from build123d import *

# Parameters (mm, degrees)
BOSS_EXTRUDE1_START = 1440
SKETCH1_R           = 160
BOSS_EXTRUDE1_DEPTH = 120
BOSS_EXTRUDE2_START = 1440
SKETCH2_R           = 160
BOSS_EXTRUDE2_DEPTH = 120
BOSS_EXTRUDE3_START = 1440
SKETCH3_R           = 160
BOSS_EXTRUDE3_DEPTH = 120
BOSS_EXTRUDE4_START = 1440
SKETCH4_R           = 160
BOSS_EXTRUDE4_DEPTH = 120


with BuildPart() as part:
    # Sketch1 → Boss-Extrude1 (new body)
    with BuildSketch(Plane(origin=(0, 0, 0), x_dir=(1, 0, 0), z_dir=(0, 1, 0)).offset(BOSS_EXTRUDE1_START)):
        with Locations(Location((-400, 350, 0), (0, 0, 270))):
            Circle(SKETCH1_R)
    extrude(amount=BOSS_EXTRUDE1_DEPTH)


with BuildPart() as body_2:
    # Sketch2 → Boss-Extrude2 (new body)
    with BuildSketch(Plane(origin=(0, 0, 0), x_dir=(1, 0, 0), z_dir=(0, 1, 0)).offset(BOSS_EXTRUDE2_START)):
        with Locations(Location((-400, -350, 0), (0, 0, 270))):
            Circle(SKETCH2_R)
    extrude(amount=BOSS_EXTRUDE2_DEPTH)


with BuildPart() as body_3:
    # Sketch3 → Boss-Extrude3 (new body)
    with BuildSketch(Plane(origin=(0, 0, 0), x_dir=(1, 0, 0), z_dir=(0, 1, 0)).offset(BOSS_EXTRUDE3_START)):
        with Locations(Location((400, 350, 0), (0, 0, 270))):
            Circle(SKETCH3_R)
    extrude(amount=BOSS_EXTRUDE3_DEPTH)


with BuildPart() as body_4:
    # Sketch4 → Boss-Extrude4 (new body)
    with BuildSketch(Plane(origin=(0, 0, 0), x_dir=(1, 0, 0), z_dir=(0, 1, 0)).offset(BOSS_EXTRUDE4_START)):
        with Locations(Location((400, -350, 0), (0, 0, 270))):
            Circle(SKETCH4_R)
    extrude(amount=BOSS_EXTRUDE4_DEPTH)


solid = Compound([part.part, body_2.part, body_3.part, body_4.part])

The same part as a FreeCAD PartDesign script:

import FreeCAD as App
import Part
import Sketcher

V = App.Vector
Q = App.Units.Quantity

doc = App.newDocument("Part")
params = doc.addObject("Spreadsheet::Sheet", "Params")
for row, (alias, value) in enumerate([
    ("sketch1_diameter", "320 mm"),
    ("pad1_length", "120 mm"),
    ("sketch2_diameter", "320 mm"),
    ("pad2_length", "120 mm"),
    ("sketch3_diameter", "320 mm"),
    ("pad3_length", "120 mm"),
    ("sketch4_diameter", "320 mm"),
    ("pad4_length", "120 mm"),
], start=1):
    params.set(f"A{row}", alias)
    params.set(f"B{row}", "=" + value)
    params.setAlias(f"B{row}", alias)

body = doc.addObject("PartDesign::Body", "Body")

# Sketch on XZ plane
sketch1 = body.newObject("Sketcher::SketchObject", "Sketch")
sketch1.AttachmentSupport = (doc.getObject("XZ_Plane"), [""])
sketch1.MapMode = "FlatFace"
sketch1.AttachmentOffset = App.Placement(V(0, 0, -1440), App.Rotation())
sketch1.addGeometry(Part.Circle(V(-400, -350, 0), V(0, 0, 1), 160), False)
sketch1.addConstraint(Sketcher.Constraint("Diameter", 0, Q("320 mm")))
sketch1.addConstraint(Sketcher.Constraint("DistanceX", 0, 3, -1, 1, Q("400 mm")))
sketch1.addConstraint(Sketcher.Constraint("DistanceY", 0, 3, -1, 1, Q("350 mm")))
sketch1.setExpression("Constraints[0]", "Params.sketch1_diameter")
pad1 = body.newObject("PartDesign::Pad", "Pad")
pad1.Profile = sketch1
pad1.setExpression("Length", "Params.pad1_length")
pad1.Reversed = True
body2 = doc.addObject("PartDesign::Body", "Body001")

# Sketch on XZ plane
sketch2 = body2.newObject("Sketcher::SketchObject", "Sketch001")
sketch2.AttachmentSupport = (doc.getObject("XZ_Plane001"), [""])
sketch2.MapMode = "FlatFace"
sketch2.AttachmentOffset = App.Placement(V(0, 0, -1440), App.Rotation())
sketch2.addGeometry(Part.Circle(V(-400, 350, 0), V(0, 0, 1), 160), False)
sketch2.addConstraint(Sketcher.Constraint("Diameter", 0, Q("320 mm")))
sketch2.addConstraint(Sketcher.Constraint("DistanceX", 0, 3, -1, 1, Q("400 mm")))
sketch2.addConstraint(Sketcher.Constraint("DistanceY", -1, 1, 0, 3, Q("350 mm")))
sketch2.setExpression("Constraints[0]", "Params.sketch2_diameter")
pad2 = body2.newObject("PartDesign::Pad", "Pad001")
pad2.Profile = sketch2
pad2.setExpression("Length", "Params.pad2_length")
pad2.Reversed = True
body3 = doc.addObject("PartDesign::Body", "Body002")

# Sketch on XZ plane
sketch3 = body3.newObject("Sketcher::SketchObject", "Sketch002")
sketch3.AttachmentSupport = (doc.getObject("XZ_Plane002"), [""])
sketch3.MapMode = "FlatFace"
sketch3.AttachmentOffset = App.Placement(V(0, 0, -1440), App.Rotation())
sketch3.addGeometry(Part.Circle(V(400, -350, 0), V(0, 0, 1), 160), False)
sketch3.addConstraint(Sketcher.Constraint("Diameter", 0, Q("320 mm")))
sketch3.addConstraint(Sketcher.Constraint("DistanceX", -1, 1, 0, 3, Q("400 mm")))
sketch3.addConstraint(Sketcher.Constraint("DistanceY", 0, 3, -1, 1, Q("350 mm")))
sketch3.setExpression("Constraints[0]", "Params.sketch3_diameter")
pad3 = body3.newObject("PartDesign::Pad", "Pad002")
pad3.Profile = sketch3
pad3.setExpression("Length", "Params.pad3_length")
pad3.Reversed = True
body4 = doc.addObject("PartDesign::Body", "Body003")

# Sketch on XZ plane
sketch4 = body4.newObject("Sketcher::SketchObject", "Sketch003")
sketch4.AttachmentSupport = (doc.getObject("XZ_Plane003"), [""])
sketch4.MapMode = "FlatFace"
sketch4.AttachmentOffset = App.Placement(V(0, 0, -1440), App.Rotation())
sketch4.addGeometry(Part.Circle(V(400, 350, 0), V(0, 0, 1), 160), False)
sketch4.addConstraint(Sketcher.Constraint("Diameter", 0, Q("320 mm")))
sketch4.addConstraint(Sketcher.Constraint("DistanceX", -1, 1, 0, 3, Q("400 mm")))
sketch4.addConstraint(Sketcher.Constraint("DistanceY", -1, 1, 0, 3, Q("350 mm")))
sketch4.setExpression("Constraints[0]", "Params.sketch4_diameter")
pad4 = body4.newObject("PartDesign::Pad", "Pad003")
pad4.Profile = sketch4
pad4.setExpression("Length", "Params.pad4_length")
pad4.Reversed = True

doc.recompute()
